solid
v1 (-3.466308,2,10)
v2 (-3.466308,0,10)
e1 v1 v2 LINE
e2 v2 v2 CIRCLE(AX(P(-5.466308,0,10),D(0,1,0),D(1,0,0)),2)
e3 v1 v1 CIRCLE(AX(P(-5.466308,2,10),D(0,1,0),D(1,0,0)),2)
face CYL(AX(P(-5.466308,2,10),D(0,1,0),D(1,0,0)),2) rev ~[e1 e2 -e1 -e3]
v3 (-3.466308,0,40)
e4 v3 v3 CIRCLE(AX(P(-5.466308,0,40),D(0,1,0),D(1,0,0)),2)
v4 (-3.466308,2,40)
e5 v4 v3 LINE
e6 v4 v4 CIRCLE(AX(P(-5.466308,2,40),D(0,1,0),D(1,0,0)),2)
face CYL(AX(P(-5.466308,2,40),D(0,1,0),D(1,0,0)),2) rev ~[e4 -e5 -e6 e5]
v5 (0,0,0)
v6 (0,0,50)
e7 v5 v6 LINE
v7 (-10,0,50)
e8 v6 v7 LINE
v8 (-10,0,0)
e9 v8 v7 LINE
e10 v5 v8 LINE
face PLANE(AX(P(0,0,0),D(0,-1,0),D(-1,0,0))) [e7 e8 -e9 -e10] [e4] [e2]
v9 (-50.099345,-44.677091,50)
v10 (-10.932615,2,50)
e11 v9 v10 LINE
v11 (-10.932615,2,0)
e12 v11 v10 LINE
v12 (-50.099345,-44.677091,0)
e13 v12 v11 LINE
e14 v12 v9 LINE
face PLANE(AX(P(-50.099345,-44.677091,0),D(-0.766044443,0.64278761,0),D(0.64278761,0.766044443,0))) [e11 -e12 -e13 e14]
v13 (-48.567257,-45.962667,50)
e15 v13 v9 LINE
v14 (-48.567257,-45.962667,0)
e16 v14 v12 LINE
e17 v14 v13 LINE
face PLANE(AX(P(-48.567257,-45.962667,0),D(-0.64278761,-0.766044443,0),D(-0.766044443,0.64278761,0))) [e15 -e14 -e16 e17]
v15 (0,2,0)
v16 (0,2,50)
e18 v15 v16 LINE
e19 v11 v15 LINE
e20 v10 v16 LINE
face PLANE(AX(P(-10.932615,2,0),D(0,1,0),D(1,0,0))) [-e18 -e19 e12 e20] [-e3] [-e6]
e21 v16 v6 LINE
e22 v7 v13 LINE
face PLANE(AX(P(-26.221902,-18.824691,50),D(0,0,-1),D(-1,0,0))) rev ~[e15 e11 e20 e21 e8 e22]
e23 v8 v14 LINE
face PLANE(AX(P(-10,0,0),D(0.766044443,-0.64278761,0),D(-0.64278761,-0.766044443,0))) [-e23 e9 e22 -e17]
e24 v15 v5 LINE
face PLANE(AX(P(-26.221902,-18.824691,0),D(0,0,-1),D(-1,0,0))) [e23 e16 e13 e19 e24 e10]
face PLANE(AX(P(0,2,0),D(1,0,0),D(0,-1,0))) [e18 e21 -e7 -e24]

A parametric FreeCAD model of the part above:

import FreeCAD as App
import Part
import Sketcher
from FreeCAD import Vector
Q = App.Units.Quantity


def add_polygon(sketch, points):
    """Adds a closed chain of lines whose ends are joined by coincident constraints."""
    first, n = sketch.GeometryCount, len(points)
    for a, b in zip(points, points[1:] + points[:1]):
        sketch.addGeometry(Part.LineSegment(App.Vector(*a, 0), App.Vector(*b, 0)), False)
    for i in range(n):
        sketch.addConstraint(Sketcher.Constraint("Coincident", first + i, 2, first + (i + 1) % n, 1))

doc = App.newDocument("Part")
body = doc.addObject("PartDesign::Body", "Body")

# Sketch on XY plane
sketch1 = body.newObject("Sketcher::SketchObject", "Sketch")
sketch1.AttachmentSupport = (doc.getObject("XY_Plane"), [""])
sketch1.MapMode = "FlatFace"
add_polygon(sketch1, [(-10, 0), (0, 0), (0, 2), (-10.9, 2), (-50.1, -44.7), (-48.6, -46)])  # lines 0-5
sketch1.addConstraint(Sketcher.Constraint("Horizontal", 0))
sketch1.addConstraint(Sketcher.Constraint("Vertical", 1))
sketch1.addConstraint(Sketcher.Constraint("Horizontal", 2))
sketch1.addConstraint(Sketcher.Constraint("Coincident", 0, 2, -1, 1))
sketch1.addConstraint(Sketcher.Constraint("Perpendicular", 3, 4))
sketch1.addConstraint(Sketcher.Constraint("Perpendicular", 4, 5))
sketch1.addConstraint(Sketcher.Constraint("DistanceX", 0, 1, 0, 2, Q("10 mm")))
sketch1.addConstraint(Sketcher.Constraint("DistanceY", 1, 1, 1, 2, Q("2 mm")))
sketch1.addConstraint(Sketcher.Constraint("Angle", 3, Q("-130 deg")))
sketch1.addConstraint(Sketcher.Constraint("Distance", 4, Q("2 mm")))
sketch1.addConstraint(Sketcher.Constraint("Distance", 5, Q("60 mm")))
pad1 = body.newObject("PartDesign::Pad", "Pad")
pad1.Profile = sketch1
pad1.Length = 50

# Sketch on XZ plane
sketch2 = body.newObject("Sketcher::SketchObject", "Sketch001")
sketch2.AttachmentSupport = (doc.getObject("XZ_Plane"), [""])
sketch2.MapMode = "FlatFace"
sketch2.AttachmentOffset = App.Placement(Vector(0, 0, -2), App.Rotation())
sketch2.addGeometry(Part.Circle(Vector(-5.5, 10, 0), Vector(0, 0, 1), 2), False)
sketch2.addConstraint(Sketcher.Constraint("Diameter", 0, Q("4 mm")))
sketch2.addConstraint(Sketcher.Constraint("DistanceY", -1, 1, 0, 3, Q("10 mm")))
sketch2.addConstraint(Sketcher.Constraint("DistanceX", 0, 3, -1, 1, Q("5.466308 mm")))
pocket1 = body.newObject("PartDesign::Pocket", "Pocket")
pocket1.Profile = sketch2
pocket1.Type = "UpToFirst"
pocket1.Reversed = True

# Sketch on XZ plane
sketch3 = body.newObject("Sketcher::SketchObject", "Sketch002")
sketch3.AttachmentSupport = (doc.getObject("XZ_Plane"), [""])
sketch3.MapMode = "FlatFace"
sketch3.AttachmentOffset = App.Placement(Vector(0, 0, -2), App.Rotation())
sketch3.addGeometry(Part.Circle(Vector(-5.5, 40, 0), Vector(0, 0, 1), 2), False)
sketch3.addConstraint(Sketcher.Constraint("Diameter", 0, Q("4 mm")))
sketch3.addConstraint(Sketcher.Constraint("DistanceY", -1, 1, 0, 3, Q("40 mm")))
sketch3.addConstraint(Sketcher.Constraint("DistanceX", 0, 3, -1, 1, Q("5.466308 mm")))
pocket2 = body.newObject("PartDesign::Pocket", "Pocket001")
pocket2.Profile = sketch3
pocket2.Type = "UpToFirst"
pocket2.Reversed = True

doc.recompute()
